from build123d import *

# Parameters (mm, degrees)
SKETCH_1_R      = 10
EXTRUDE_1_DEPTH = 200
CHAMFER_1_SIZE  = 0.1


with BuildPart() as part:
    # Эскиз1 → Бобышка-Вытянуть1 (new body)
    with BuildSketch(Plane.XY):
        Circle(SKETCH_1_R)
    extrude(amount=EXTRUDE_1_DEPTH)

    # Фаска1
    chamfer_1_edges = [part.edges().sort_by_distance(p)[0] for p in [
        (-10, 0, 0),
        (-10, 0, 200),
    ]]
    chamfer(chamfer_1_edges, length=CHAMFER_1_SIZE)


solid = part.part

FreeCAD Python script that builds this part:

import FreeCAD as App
import Part
import Sketcher

V = App.Vector


def edges_at(feature, points):
    """Names of the edges that pass closest to the given points."""
    edges = feature.Shape.Edges
    near = lambda p: min(range(len(edges)), key=lambda i: edges[i].distToShape(Part.Vertex(*p))[0])
    return sorted({f"Edge{near(p) + 1}" for p in points})

doc = App.newDocument("Part")
body = doc.addObject("PartDesign::Body", "Body")

sketch1 = body.newObject("Sketcher::SketchObject", "Sketch")
sketch1.AttachmentSupport = (doc.getObject("XY_Plane"), [""])
sketch1.MapMode = "FlatFace"
sketch1.addGeometry(Part.Circle(V(0, 0, 0), V(0, 0, 1), 10), False)
sketch1.addConstraint([
    Sketcher.Constraint("Coincident", 0, 3, -1, 1),
    Sketcher.Constraint("Diameter", 0, 20.0),
])
pad1 = body.newObject("PartDesign::Pad", "Pad")
pad1.Profile = sketch1
pad1.Length = 200
doc.recompute()

chamfer = body.newObject("PartDesign::Chamfer", "Chamfer")
chamfer.Base = (pad1, edges_at(pad1, [(-10, 0, 0), (-10, 0, 200)]))
chamfer.Size = 0.1

doc.recompute()
